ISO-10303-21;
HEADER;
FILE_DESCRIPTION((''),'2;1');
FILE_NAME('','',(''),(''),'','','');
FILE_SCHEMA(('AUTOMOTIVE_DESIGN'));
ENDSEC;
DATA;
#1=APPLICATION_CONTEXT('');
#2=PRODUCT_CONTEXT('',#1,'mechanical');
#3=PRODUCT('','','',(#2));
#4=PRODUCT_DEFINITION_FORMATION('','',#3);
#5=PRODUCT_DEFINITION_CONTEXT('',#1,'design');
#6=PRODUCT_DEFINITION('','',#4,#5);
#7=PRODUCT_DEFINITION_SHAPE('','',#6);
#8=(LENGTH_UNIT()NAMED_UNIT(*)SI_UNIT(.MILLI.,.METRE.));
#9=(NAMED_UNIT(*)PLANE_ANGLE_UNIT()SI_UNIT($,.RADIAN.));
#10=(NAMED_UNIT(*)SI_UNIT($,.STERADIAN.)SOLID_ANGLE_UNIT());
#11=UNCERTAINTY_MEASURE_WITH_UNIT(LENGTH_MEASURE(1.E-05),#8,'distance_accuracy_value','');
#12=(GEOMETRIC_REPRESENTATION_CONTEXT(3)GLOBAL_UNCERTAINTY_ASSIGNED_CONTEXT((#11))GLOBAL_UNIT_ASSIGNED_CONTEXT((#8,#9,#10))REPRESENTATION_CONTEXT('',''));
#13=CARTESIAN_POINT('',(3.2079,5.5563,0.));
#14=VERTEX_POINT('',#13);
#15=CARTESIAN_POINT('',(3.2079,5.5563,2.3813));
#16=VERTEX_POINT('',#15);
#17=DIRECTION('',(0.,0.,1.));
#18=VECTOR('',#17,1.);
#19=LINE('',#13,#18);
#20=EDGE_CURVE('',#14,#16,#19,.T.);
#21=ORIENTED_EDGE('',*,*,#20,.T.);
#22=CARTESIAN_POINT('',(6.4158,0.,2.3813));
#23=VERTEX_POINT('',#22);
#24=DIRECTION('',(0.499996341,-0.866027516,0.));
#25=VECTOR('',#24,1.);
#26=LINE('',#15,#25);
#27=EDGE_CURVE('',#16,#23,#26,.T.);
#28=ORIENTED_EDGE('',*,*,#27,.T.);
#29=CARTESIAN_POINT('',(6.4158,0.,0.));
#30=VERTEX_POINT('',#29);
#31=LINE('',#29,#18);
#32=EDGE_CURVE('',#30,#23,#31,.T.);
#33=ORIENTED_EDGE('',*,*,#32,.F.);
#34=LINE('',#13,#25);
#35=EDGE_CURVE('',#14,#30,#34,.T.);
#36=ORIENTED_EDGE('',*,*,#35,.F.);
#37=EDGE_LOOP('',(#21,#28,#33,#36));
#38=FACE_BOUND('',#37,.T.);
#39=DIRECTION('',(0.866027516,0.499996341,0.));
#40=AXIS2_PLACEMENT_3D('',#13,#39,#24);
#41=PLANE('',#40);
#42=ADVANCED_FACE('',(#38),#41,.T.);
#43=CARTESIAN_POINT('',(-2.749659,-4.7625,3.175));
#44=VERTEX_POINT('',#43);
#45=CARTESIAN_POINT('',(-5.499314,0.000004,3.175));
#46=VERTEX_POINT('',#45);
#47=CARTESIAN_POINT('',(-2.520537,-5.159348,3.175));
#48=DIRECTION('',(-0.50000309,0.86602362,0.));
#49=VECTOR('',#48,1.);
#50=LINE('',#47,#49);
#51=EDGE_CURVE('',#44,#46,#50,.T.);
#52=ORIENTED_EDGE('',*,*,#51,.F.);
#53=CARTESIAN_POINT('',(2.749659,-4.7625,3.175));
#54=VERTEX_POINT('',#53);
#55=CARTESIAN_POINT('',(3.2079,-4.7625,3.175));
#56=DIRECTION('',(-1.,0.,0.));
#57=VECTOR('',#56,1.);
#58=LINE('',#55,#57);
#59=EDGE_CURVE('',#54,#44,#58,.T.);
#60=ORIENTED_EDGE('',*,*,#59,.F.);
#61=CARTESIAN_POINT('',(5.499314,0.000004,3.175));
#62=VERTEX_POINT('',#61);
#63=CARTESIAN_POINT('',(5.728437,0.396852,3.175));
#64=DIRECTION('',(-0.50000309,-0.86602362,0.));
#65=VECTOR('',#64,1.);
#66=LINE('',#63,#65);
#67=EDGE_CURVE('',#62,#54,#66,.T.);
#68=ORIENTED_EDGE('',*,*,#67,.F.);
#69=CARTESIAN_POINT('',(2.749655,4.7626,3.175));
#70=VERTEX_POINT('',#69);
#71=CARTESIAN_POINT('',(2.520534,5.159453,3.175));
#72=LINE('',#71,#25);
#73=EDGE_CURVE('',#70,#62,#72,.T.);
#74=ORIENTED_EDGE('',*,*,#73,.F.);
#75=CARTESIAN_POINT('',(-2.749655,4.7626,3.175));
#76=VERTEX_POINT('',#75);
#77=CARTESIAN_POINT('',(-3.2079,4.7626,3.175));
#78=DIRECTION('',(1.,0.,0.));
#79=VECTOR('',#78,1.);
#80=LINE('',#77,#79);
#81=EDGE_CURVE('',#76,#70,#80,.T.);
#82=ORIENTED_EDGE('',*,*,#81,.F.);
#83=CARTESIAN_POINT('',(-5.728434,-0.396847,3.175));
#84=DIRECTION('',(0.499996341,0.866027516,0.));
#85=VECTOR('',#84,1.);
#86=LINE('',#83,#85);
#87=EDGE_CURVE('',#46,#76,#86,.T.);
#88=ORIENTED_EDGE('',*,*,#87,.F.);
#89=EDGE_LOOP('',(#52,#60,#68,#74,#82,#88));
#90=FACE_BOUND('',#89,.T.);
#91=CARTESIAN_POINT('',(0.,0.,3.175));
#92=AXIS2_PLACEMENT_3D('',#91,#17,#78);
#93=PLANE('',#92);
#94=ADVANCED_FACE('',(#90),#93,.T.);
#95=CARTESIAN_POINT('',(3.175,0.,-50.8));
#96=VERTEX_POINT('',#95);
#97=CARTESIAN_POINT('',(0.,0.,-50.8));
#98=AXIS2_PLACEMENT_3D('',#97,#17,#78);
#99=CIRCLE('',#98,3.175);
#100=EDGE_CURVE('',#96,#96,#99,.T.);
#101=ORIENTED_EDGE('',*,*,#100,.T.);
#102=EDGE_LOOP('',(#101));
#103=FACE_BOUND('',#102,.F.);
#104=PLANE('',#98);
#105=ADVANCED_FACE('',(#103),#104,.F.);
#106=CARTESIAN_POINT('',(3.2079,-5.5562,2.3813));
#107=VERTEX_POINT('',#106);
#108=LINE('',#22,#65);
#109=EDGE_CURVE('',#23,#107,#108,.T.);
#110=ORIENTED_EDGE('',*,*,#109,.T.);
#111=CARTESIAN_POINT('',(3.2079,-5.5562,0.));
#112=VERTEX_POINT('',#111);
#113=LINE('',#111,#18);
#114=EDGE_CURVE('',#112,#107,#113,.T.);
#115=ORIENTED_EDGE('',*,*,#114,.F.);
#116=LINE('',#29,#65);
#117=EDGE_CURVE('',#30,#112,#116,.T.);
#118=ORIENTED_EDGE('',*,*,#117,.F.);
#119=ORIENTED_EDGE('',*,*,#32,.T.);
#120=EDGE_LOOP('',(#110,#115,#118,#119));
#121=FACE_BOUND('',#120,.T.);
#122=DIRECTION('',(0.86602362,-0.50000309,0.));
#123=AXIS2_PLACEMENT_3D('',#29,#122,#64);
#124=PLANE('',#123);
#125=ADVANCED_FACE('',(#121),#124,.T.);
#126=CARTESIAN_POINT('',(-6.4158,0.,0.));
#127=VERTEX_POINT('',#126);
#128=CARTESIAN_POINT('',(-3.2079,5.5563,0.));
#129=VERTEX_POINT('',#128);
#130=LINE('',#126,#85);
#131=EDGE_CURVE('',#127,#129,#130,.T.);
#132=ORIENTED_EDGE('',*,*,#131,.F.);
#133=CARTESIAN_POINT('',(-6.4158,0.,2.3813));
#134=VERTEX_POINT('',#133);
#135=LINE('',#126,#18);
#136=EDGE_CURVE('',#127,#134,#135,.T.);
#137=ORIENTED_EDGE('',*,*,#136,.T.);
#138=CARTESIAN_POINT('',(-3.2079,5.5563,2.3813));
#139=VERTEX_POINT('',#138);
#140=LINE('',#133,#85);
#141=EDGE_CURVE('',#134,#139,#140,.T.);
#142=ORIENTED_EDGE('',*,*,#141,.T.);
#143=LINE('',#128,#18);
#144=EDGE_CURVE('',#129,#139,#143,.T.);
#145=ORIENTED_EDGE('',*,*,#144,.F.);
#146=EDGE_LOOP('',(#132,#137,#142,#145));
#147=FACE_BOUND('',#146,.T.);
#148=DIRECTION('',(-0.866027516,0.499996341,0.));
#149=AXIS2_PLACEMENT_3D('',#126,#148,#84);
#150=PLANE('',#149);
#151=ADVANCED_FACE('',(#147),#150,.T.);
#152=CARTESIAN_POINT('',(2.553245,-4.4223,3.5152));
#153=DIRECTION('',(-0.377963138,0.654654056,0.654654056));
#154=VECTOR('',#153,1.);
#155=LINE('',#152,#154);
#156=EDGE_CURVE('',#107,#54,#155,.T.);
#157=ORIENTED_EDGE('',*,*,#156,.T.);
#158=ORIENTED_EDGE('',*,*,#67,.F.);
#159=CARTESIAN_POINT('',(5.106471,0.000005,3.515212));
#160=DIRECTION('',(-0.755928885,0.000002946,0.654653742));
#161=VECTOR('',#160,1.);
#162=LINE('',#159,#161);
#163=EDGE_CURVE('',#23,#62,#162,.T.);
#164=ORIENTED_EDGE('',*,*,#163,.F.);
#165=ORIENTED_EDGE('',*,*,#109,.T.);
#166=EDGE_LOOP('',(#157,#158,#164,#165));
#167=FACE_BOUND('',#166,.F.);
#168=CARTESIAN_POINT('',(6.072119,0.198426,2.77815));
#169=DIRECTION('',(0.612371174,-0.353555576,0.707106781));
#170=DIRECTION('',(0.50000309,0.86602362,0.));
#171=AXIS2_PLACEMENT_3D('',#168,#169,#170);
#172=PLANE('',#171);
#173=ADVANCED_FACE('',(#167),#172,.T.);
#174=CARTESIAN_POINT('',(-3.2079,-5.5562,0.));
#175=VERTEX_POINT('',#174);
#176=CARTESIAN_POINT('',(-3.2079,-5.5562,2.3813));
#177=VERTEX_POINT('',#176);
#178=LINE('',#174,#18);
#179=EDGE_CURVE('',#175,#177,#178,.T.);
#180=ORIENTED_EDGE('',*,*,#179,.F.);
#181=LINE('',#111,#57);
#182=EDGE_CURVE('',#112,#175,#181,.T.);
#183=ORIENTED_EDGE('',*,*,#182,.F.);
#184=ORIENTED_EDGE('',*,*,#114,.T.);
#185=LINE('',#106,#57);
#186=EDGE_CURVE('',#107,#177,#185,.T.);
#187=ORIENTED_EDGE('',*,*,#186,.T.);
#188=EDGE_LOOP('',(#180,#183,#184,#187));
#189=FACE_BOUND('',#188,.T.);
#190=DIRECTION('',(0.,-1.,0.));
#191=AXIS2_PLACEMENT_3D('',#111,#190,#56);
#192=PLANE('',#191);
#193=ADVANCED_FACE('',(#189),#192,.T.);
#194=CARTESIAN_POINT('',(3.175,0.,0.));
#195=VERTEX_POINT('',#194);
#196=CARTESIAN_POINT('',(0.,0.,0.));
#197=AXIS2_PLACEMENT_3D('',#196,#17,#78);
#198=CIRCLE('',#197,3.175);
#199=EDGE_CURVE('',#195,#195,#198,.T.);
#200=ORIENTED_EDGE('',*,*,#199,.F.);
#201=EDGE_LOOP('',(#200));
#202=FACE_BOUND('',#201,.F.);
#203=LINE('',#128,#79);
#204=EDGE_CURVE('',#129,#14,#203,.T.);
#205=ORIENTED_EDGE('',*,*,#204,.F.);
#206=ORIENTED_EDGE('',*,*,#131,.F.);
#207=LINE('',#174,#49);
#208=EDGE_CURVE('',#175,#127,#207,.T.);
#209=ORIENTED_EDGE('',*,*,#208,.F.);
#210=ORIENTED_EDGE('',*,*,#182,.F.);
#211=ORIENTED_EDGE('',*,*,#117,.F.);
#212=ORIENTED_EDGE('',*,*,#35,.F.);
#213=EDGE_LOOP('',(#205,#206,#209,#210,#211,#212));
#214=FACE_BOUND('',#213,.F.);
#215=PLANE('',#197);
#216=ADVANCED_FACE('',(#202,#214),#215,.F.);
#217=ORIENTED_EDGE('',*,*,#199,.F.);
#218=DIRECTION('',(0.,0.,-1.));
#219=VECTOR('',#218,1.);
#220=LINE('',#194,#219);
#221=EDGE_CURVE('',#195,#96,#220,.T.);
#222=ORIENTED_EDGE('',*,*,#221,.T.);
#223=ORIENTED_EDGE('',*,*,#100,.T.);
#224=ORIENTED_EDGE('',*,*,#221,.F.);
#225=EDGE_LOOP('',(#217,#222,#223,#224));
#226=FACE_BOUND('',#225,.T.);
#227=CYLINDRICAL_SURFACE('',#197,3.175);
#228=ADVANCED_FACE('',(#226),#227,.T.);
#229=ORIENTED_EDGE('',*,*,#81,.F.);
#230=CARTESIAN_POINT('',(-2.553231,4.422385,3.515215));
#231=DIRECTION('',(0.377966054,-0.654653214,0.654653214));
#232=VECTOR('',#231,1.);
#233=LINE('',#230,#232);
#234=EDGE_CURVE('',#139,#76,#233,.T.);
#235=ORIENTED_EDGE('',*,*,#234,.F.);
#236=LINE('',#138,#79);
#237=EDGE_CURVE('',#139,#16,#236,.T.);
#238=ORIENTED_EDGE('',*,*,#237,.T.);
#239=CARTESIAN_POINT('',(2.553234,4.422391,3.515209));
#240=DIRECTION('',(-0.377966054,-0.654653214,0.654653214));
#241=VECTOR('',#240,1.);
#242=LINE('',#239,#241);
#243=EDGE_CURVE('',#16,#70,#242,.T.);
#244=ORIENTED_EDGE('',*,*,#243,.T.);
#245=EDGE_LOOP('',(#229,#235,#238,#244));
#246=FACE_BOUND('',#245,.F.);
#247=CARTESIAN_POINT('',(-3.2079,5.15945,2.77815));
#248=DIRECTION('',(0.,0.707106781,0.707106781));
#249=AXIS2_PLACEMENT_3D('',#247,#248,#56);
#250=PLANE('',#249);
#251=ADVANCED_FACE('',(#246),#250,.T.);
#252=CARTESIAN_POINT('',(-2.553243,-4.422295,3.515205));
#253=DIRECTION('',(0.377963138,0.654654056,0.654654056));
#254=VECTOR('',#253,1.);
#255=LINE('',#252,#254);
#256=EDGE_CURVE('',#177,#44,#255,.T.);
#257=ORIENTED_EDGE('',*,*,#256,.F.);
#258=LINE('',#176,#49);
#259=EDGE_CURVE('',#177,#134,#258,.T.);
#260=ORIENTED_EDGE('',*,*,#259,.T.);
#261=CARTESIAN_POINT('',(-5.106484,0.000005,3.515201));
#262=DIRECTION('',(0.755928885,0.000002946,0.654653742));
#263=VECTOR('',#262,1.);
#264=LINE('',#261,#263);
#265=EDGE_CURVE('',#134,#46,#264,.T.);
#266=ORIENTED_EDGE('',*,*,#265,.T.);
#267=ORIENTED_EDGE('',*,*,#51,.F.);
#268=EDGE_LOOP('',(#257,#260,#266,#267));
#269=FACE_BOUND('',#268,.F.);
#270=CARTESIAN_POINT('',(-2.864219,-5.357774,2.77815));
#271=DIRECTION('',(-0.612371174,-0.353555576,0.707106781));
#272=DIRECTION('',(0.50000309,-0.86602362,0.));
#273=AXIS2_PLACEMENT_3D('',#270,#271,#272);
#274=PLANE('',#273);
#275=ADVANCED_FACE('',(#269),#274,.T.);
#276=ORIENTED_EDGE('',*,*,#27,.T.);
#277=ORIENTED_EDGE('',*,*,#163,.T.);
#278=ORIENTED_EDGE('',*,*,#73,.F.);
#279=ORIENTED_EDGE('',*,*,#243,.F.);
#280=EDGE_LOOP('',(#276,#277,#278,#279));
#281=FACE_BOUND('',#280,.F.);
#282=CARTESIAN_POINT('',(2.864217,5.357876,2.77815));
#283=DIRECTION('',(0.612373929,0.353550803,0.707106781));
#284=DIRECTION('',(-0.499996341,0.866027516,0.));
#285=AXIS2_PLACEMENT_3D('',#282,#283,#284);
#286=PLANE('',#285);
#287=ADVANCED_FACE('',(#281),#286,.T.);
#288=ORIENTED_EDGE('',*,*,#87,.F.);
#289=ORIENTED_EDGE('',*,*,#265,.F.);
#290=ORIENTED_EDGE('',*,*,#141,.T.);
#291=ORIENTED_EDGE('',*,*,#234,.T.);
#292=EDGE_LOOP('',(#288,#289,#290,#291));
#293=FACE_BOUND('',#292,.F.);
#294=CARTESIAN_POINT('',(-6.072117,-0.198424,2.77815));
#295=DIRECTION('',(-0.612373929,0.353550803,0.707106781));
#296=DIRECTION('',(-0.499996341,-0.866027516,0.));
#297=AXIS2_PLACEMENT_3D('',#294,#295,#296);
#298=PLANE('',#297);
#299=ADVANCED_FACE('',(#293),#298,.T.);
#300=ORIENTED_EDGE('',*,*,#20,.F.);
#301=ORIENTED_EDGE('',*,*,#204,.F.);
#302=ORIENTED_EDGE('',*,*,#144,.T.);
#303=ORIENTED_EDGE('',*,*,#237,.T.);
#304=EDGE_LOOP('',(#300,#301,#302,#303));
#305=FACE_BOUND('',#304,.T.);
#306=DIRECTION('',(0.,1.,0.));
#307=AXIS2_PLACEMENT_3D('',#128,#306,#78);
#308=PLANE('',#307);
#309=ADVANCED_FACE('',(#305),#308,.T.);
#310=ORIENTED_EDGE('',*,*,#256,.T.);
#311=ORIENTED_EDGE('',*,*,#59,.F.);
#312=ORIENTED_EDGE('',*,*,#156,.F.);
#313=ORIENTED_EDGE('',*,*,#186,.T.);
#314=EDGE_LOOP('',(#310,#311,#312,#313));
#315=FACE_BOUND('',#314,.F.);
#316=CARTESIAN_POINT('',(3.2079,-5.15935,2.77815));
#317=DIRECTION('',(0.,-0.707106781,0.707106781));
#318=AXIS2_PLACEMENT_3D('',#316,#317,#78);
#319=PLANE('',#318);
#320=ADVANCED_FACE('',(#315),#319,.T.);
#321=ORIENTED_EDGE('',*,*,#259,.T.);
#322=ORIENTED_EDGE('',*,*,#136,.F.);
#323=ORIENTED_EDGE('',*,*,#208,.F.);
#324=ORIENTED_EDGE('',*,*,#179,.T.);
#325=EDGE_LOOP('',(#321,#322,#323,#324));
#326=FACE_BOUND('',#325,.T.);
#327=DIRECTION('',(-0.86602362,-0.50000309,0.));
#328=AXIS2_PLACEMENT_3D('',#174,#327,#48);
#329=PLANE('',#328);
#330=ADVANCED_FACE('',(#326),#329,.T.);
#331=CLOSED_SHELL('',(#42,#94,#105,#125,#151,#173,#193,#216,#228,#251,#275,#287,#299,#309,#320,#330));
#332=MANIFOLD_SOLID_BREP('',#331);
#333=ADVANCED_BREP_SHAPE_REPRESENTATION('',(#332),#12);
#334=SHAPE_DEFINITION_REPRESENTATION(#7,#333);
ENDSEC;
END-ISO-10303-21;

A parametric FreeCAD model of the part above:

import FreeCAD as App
import Part
import Sketcher
from FreeCAD import Vector
Q = App.Units.Quantity


def edges_at(feature, points):
    """Names of the edges that pass closest to the given points."""
    edges = feature.Shape.Edges
    near = lambda p: min(range(len(edges)), key=lambda i: edges[i].distToShape(Part.Vertex(*p))[0])
    return sorted({f"Edge{near(p) + 1}" for p in points})


def add_polygon(sketch, points):
    """Adds a closed chain of lines whose ends are joined by coincident constraints."""
    first, n = sketch.GeometryCount, len(points)
    for a, b in zip(points, points[1:] + points[:1]):
        sketch.addGeometry(Part.LineSegment(App.Vector(*a, 0), App.Vector(*b, 0)), False)
    for i in range(n):
        sketch.addConstraint(Sketcher.Constraint("Coincident", first + i, 2, first + (i + 1) % n, 1))

doc = App.newDocument("Part")
body = doc.addObject("PartDesign::Body", "Body")

sketch1 = doc.addObject("Sketcher::SketchObject", "Sketch")
body.addObject(sketch1)
sketch1.AttachmentSupport = (doc.XY_Plane, [""])
sketch1.MapMode = "FlatFace"
sketch1.addGeometry(Part.Circle(Vector(0, 0, 0), Vector(0, 0, 1), 3.2), False)
sketch1.addConstraint(Sketcher.Constraint("Coincident", 0, 3, -1, 1))
sketch1.addConstraint(Sketcher.Constraint("Diameter", 0, Q("0.25 in")))
pad1 = doc.addObject("PartDesign::Pad", "Pad")
body.addObject(pad1)
pad1.Profile = sketch1
pad1.Length = Q("2 in")
pad1.Reversed = True

sketch2 = doc.addObject("Sketcher::SketchObject", "Sketch001")
body.addObject(sketch2)
sketch2.AttachmentSupport = (doc.XY_Plane, [""])
sketch2.MapMode = "FlatFace"
add_polygon(sketch2, [(6, 0), (3, 6), (-3, 6), (-6, 0), (-3, -6), (3, -6)])
sketch2.addConstraint(Sketcher.Constraint("Horizontal", 1))
sketch2.addConstraint(Sketcher.Constraint("Horizontal", 4))
sketch2.addConstraint(Sketcher.Constraint("Symmetric", 0, 2, 3, 2, -1, 1))
sketch2.addConstraint(Sketcher.Constraint("Symmetric", 2, 2, 5, 2, -1, 1))
sketch2.addConstraint(Sketcher.Constraint("PointOnObject", 2, 2, -1))
sketch2.addConstraint(Sketcher.Constraint("Parallel", 2, 5))
sketch2.addConstraint(Sketcher.Constraint("Vertical", 1, 2, 3, 2))
sketch2.addConstraint(Sketcher.Constraint("Angle", 0, Q("119.9998 deg")))
sketch2.addConstraint(Sketcher.Constraint("DistanceY", 3, 2, 1, 2, Q("0.4375 in")))
sketch2.addConstraint(Sketcher.Constraint("DistanceX", 1, 2, 1, 1, Q("0.2526 in")))
pad2 = doc.addObject("PartDesign::Pad", "Pad001")
body.addObject(pad2)
pad2.Profile = sketch2
pad2.Length = Q("0.125 in")
doc.recompute()

chamfer = doc.addObject("PartDesign::Chamfer", "Chamfer")
body.addObject(chamfer)
chamfer.Base = (pad2, edges_at(pad2, [
    (4.812, 2.778, 3.175),
    (0, 5.556, 3.175),
    (-4.812, 2.778, 3.175),
    (-4.812, -2.778, 3.175),
    (0, -5.556, 3.175),
    (4.812, -2.778, 3.175),
]))
chamfer.Size = Q("0.031248 in")

doc.recompute()
